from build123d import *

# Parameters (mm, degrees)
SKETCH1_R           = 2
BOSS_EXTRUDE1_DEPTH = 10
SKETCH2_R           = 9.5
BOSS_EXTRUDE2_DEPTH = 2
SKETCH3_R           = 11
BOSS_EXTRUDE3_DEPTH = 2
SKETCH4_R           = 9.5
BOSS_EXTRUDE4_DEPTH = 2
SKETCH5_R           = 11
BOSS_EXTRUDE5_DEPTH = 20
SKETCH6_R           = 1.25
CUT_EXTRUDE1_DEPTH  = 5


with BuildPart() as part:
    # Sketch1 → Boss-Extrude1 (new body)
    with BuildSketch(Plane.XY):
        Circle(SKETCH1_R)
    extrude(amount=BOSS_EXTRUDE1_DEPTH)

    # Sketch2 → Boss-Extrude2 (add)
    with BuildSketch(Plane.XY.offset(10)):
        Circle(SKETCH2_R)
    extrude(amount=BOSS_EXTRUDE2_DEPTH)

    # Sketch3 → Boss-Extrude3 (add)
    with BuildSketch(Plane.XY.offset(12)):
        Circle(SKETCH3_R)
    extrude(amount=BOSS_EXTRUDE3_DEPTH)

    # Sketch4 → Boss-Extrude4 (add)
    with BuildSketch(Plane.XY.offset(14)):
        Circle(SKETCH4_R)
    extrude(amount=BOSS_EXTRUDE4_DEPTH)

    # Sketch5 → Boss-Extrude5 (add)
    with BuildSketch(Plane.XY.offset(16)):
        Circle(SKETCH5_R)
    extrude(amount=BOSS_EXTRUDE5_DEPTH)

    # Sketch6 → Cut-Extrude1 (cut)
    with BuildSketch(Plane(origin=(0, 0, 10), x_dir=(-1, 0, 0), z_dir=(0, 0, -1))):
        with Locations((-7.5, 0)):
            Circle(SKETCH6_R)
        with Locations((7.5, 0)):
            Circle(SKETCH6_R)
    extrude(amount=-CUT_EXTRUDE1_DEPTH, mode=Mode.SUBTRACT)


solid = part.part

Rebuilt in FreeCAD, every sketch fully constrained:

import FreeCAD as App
import Part
import Sketcher

doc = App.newDocument("Part")
body = doc.addObject("PartDesign::Body", "Body")

sketch1 = doc.addObject("Sketcher::SketchObject", "Sketch")
body.addObject(sketch1)
sketch1.AttachmentSupport = (doc.XY_Plane, [""])
sketch1.MapMode = "FlatFace"
sketch1.addGeometry(Part.Circle(App.Vector(0, 0, 0), App.Vector(0, 0, 1), 2), False)
sketch1.addConstraint([
    Sketcher.Constraint("Coincident", 0, 3, -1, 1),
    Sketcher.Constraint("Diameter", 0, 4.0),
])
pad1 = doc.addObject("PartDesign::Pad", "Pad")
body.addObject(pad1)
pad1.Profile = sketch1
pad1.Length = 10

sketch2 = doc.addObject("Sketcher::SketchObject", "Sketch001")
body.addObject(sketch2)
sketch2.AttachmentSupport = (doc.XY_Plane, [""])
sketch2.MapMode = "FlatFace"
sketch2.AttachmentOffset = App.Placement(App.Vector(0, 0, 10), App.Rotation())
sketch2.addGeometry(Part.Circle(App.Vector(0, 0, 0), App.Vector(0, 0, 1), 10), False)
sketch2.addConstraint([
    Sketcher.Constraint("Coincident", 0, 3, -1, 1),
    Sketcher.Constraint("Diameter", 0, 19.0),
])
pad2 = doc.addObject("PartDesign::Pad", "Pad001")
body.addObject(pad2)
pad2.Profile = sketch2
pad2.Length = 2

sketch3 = doc.addObject("Sketcher::SketchObject", "Sketch002")
body.addObject(sketch3)
sketch3.AttachmentSupport = (doc.XY_Plane, [""])
sketch3.MapMode = "FlatFace"
sketch3.AttachmentOffset = App.Placement(App.Vector(0, 0, 12), App.Rotation())
sketch3.addGeometry(Part.Circle(App.Vector(0, 0, 0), App.Vector(0, 0, 1), 11), False)
sketch3.addConstraint([
    Sketcher.Constraint("Coincident", 0, 3, -1, 1),
    Sketcher.Constraint("Diameter", 0, 22.0),
])
pad3 = doc.addObject("PartDesign::Pad", "Pad002")
body.addObject(pad3)
pad3.Profile = sketch3
pad3.Length = 2

sketch4 = doc.addObject("Sketcher::SketchObject", "Sketch003")
body.addObject(sketch4)
sketch4.AttachmentSupport = (doc.XY_Plane, [""])
sketch4.MapMode = "FlatFace"
sketch4.AttachmentOffset = App.Placement(App.Vector(0, 0, 14), App.Rotation())
sketch4.addGeometry(Part.Circle(App.Vector(0, 0, 0), App.Vector(0, 0, 1), 10), False)
sketch4.addConstraint([
    Sketcher.Constraint("Coincident", 0, 3, -1, 1),
    Sketcher.Constraint("Diameter", 0, 19.0),
])
pad4 = doc.addObject("PartDesign::Pad", "Pad003")
body.addObject(pad4)
pad4.Profile = sketch4
pad4.Length = 2

sketch5 = doc.addObject("Sketcher::SketchObject", "Sketch004")
body.addObject(sketch5)
sketch5.AttachmentSupport = (doc.XY_Plane, [""])
sketch5.MapMode = "FlatFace"
sketch5.AttachmentOffset = App.Placement(App.Vector(0, 0, 16), App.Rotation())
sketch5.addGeometry(Part.Circle(App.Vector(0, 0, 0), App.Vector(0, 0, 1), 11), False)
sketch5.addConstraint([
    Sketcher.Constraint("Coincident", 0, 3, -1, 1),
    Sketcher.Constraint("Diameter", 0, 22.0),
])
pad5 = doc.addObject("PartDesign::Pad", "Pad004")
body.addObject(pad5)
pad5.Profile = sketch5
pad5.Length = 20

sketch6 = doc.addObject("Sketcher::SketchObject", "Sketch005")
body.addObject(sketch6)
sketch6.AttachmentSupport = (doc.XY_Plane, [""])
sketch6.MapMode = "FlatFace"
sketch6.AttachmentOffset = App.Placement(App.Vector(0, 0, 10), App.Rotation())
sketch6.addGeometry([
    Part.Circle(App.Vector(7.5, 0, 0), App.Vector(0, 0, 1), 1.2),
    Part.Circle(App.Vector(-7.5, 0, 0), App.Vector(0, 0, 1), 1.2),
], False)
sketch6.addConstraint([
    Sketcher.Constraint("Equal", 0, 1),
    Sketcher.Constraint("Symmetric", 0, 3, 1, 3, -1, 1),
    Sketcher.Constraint("PointOnObject", 0, 3, -1),
    Sketcher.Constraint("Diameter", 0, 2.5),
    Sketcher.Constraint("DistanceX", 1, 3, 0, 3, 15.0),
])
pocket1 = doc.addObject("PartDesign::Pocket", "Pocket")
body.addObject(pocket1)
pocket1.Profile = sketch6
pocket1.Length = 5
pocket1.Reversed = True

doc.recompute()
